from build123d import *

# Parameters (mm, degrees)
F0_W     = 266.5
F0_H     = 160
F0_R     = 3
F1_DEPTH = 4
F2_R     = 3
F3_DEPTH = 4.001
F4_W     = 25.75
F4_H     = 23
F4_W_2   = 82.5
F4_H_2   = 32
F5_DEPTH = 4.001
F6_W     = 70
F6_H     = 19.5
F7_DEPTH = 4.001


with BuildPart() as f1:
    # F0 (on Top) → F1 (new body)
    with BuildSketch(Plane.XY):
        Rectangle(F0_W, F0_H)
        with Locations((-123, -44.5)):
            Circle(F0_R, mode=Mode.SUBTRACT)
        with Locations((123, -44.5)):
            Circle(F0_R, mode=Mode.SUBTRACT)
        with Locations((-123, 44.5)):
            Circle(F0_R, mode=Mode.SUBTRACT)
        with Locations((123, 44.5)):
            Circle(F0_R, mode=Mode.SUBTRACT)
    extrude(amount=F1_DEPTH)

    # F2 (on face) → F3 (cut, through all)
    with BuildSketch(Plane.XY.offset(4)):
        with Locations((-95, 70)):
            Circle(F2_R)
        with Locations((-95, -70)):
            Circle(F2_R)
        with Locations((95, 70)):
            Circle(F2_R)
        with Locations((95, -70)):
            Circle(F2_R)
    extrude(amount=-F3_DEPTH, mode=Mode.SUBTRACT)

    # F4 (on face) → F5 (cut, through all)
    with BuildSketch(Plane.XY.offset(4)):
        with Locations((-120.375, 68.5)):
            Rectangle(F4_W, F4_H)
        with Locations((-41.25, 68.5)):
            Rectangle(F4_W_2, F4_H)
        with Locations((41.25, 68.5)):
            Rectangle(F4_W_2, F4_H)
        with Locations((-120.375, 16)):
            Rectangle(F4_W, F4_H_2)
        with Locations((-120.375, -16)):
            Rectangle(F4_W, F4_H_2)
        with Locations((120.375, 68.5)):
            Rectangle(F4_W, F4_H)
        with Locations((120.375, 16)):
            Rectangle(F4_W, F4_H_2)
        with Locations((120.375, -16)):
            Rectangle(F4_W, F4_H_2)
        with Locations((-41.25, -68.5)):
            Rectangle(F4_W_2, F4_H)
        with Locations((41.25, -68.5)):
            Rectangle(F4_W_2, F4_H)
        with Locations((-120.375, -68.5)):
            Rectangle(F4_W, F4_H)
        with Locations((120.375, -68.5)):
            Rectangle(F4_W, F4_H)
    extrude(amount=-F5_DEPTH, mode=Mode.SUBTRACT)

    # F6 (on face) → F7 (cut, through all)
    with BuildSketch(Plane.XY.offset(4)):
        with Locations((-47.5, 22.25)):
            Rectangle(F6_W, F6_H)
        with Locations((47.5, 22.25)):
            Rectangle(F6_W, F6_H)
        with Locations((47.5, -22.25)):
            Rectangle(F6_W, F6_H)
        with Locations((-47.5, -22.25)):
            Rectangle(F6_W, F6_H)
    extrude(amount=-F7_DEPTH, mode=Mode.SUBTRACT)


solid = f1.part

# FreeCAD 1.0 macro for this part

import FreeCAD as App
import Part
import Sketcher

V = App.Vector
Q = App.Units.Quantity

doc = App.newDocument("Part")
body = doc.addObject("PartDesign::Body", "Body")

# Sketch on XY plane
sketch1 = body.newObject("Sketcher::SketchObject", "Sketch")
sketch1.AttachmentSupport = (doc.getObject("XY_Plane"), [""])
sketch1.MapMode = "FlatFace"
sketch1.addGeometry([
    Part.LineSegment(V(-133.25, 80, 0), V(-133.25, -80, 0)),  # 0
    Part.LineSegment(V(-133.25, -80, 0), V(133.25, -80, 0)),  # 1
    Part.LineSegment(V(133.25, -80, 0), V(133.25, 80, 0)),  # 2
    Part.LineSegment(V(133.25, 80, 0), V(-133.25, 80, 0)),  # 3
    Part.Circle(V(-123, -44.5, 0), V(0, 0, 1), 3),  # 4
    Part.Circle(V(123, -44.5, 0), V(0, 0, 1), 3),  # 5
    Part.Circle(V(-123, 44.5, 0), V(0, 0, 1), 3),  # 6
    Part.Circle(V(123, 44.5, 0), V(0, 0, 1), 3),  # 7
], False)
sketch1.addConstraint([
    Sketcher.Constraint("Coincident", 0, 2, 1, 1),
    Sketcher.Constraint("Coincident", 1, 2, 2, 1),
    Sketcher.Constraint("Coincident", 2, 2, 3, 1),
    Sketcher.Constraint("Coincident", 3, 2, 0, 1),
    Sketcher.Constraint("Vertical", 0),
    Sketcher.Constraint("Horizontal", 1),
    Sketcher.Constraint("Vertical", 2),
    Sketcher.Constraint("Horizontal", 3),
    Sketcher.Constraint("Equal", 4, 5),
    Sketcher.Constraint("Equal", 5, 6),
    Sketcher.Constraint("Equal", 6, 7),
    Sketcher.Constraint("Symmetric", 5, 3, 6, 3, -1, 1),
    Sketcher.Constraint("Symmetric", 4, 3, 7, 3, -1, 1),
    Sketcher.Constraint("Symmetric", 0, 2, 2, 2, -1, 1),
    Sketcher.Constraint("Symmetric", 4, 3, 5, 3, -2),
    Sketcher.Constraint("Diameter", 4, Q("6 mm")),
    Sketcher.Constraint("DistanceY", 0, 2, 0, 1, Q("160 mm")),
    Sketcher.Constraint("DistanceX", 1, 1, 1, 2, Q("266.5 mm")),
    Sketcher.Constraint("DistanceX", 4, 3, -1, 1, Q("123 mm")),
    Sketcher.Constraint("DistanceY", 4, 3, 6, 3, Q("89 mm")),
])
pad1 = body.newObject("PartDesign::Pad", "Pad")
pad1.Profile = sketch1
pad1.Length = 4

# Sketch on XY plane
sketch2 = body.newObject("Sketcher::SketchObject", "Sketch001")
sketch2.AttachmentSupport = (doc.getObject("XY_Plane"), [""])
sketch2.MapMode = "FlatFace"
sketch2.AttachmentOffset = App.Placement(V(0, 0, 4), App.Rotation())
sketch2.addGeometry([
    Part.Circle(V(-95, 70, 0), V(0, 0, 1), 3),
    Part.Circle(V(-95, -70, 0), V(0, 0, 1), 3),
    Part.Circle(V(95, 70, 0), V(0, 0, 1), 3),
    Part.Circle(V(95, -70, 0), V(0, 0, 1), 3),
], False)
sketch2.addConstraint([
    Sketcher.Constraint("Equal", 0, 1),
    Sketcher.Constraint("Equal", 1, 2),
    Sketcher.Constraint("Equal", 2, 3),
    Sketcher.Constraint("Symmetric", 1, 3, 2, 3, -1, 1),
    Sketcher.Constraint("Symmetric", 0, 3, 3, 3, -1, 1),
    Sketcher.Constraint("Symmetric", 0, 3, 2, 3, -2),
    Sketcher.Constraint("Diameter", 0, Q("6 mm")),
    Sketcher.Constraint("DistanceX", 0, 3, -1, 1, Q("95 mm")),
    Sketcher.Constraint("DistanceY", -1, 1, 0, 3, Q("70 mm")),
])
pocket1 = body.newObject("PartDesign::Pocket", "Pocket")
pocket1.Profile = sketch2
pocket1.Type = "ThroughAll"

# Sketch on XY plane
sketch3 = body.newObject("Sketcher::SketchObject", "Sketch002")
sketch3.AttachmentSupport = (doc.getObject("XY_Plane"), [""])
sketch3.MapMode = "FlatFace"
sketch3.AttachmentOffset = App.Placement(V(0, 0, 4), App.Rotation())
sketch3.addGeometry([
    Part.LineSegment(V(-133.25, 80, 0), V(-133.25, 57, 0)),  # 0
    Part.LineSegment(V(-133.25, 57, 0), V(-107.5, 57, 0)),  # 1
    Part.LineSegment(V(-107.5, 57, 0), V(-107.5, 80, 0)),  # 2
    Part.LineSegment(V(-107.5, 80, 0), V(-133.25, 80, 0)),  # 3
    Part.LineSegment(V(-82.5, 80, 0), V(-82.5, 57, 0)),  # 4
    Part.LineSegment(V(-82.5, 57, 0), V(82.5, 57, 0)),  # 5
    Part.LineSegment(V(82.5, 57, 0), V(82.5, 80, 0)),  # 6
    Part.LineSegment(V(82.5, 80, 0), V(-82.5, 80, 0)),  # 7
    Part.LineSegment(V(-133.25, 32, 0), V(-133.25, -32, 0)),  # 8
    Part.LineSegment(V(-133.25, -32, 0), V(-107.5, -32, 0)),  # 9
    Part.LineSegment(V(-107.5, -32, 0), V(-107.5, 32, 0)),  # 10
    Part.LineSegment(V(-107.5, 32, 0), V(-133.25, 32, 0)),  # 11
    Part.LineSegment(V(107.5, 80, 0), V(107.5, 57, 0)),  # 12
    Part.LineSegment(V(107.5, 57, 0), V(133.25, 57, 0)),  # 13
    Part.LineSegment(V(133.25, 57, 0), V(133.25, 80, 0)),  # 14
    Part.LineSegment(V(133.25, 80, 0), V(107.5, 80, 0)),  # 15
    Part.LineSegment(V(107.5, 32, 0), V(107.5, -32, 0)),  # 16
    Part.LineSegment(V(107.5, -32, 0), V(133.25, -32, 0)),  # 17
    Part.LineSegment(V(133.25, -32, 0), V(133.25, 32, 0)),  # 18
    Part.LineSegment(V(133.25, 32, 0), V(107.5, 32, 0)),  # 19
    Part.LineSegment(V(-82.5, -57, 0), V(-82.5, -80, 0)),  # 20
    Part.LineSegment(V(-82.5, -80, 0), V(82.5, -80, 0)),  # 21
    Part.LineSegment(V(82.5, -80, 0), V(82.5, -57, 0)),  # 22
    Part.LineSegment(V(82.5, -57, 0), V(-82.5, -57, 0)),  # 23
    Part.LineSegment(V(-133.25, -57, 0), V(-133.25, -80, 0)),  # 24
    Part.LineSegment(V(-133.25, -80, 0), V(-107.5, -80, 0)),  # 25
    Part.LineSegment(V(-107.5, -80, 0), V(-107.5, -57, 0)),  # 26
    Part.LineSegment(V(-107.5, -57, 0), V(-133.25, -57, 0)),  # 27
    Part.LineSegment(V(107.5, -57, 0), V(107.5, -80, 0)),  # 28
    Part.LineSegment(V(107.5, -80, 0), V(133.25, -80, 0)),  # 29
    Part.LineSegment(V(133.25, -80, 0), V(133.25, -57, 0)),  # 30
    Part.LineSegment(V(133.25, -57, 0), V(107.5, -57, 0)),  # 31
], False)
sketch3.addConstraint([
    Sketcher.Constraint("Coincident", 0, 2, 1, 1),
    Sketcher.Constraint("Coincident", 1, 2, 2, 1),
    Sketcher.Constraint("Coincident", 2, 2, 3, 1),
    Sketcher.Constraint("Coincident", 3, 2, 0, 1),
    Sketcher.Constraint("Coincident", 4, 2, 5, 1),
    Sketcher.Constraint("Coincident", 5, 2, 6, 1),
    Sketcher.Constraint("Coincident", 6, 2, 7, 1),
    Sketcher.Constraint("Coincident", 7, 2, 4, 1),
    Sketcher.Constraint("Coincident", 8, 2, 9, 1),
    Sketcher.Constraint("Coincident", 9, 2, 10, 1),
    Sketcher.Constraint("Coincident", 10, 2, 11, 1),
    Sketcher.Constraint("Coincident", 11, 2, 8, 1),
    Sketcher.Constraint("Coincident", 12, 2, 13, 1),
    Sketcher.Constraint("Coincident", 13, 2, 14, 1),
    Sketcher.Constraint("Coincident", 14, 2, 15, 1),
    Sketcher.Constraint("Coincident", 15, 2, 12, 1),
    Sketcher.Constraint("Coincident", 16, 2, 17, 1),
    Sketcher.Constraint("Coincident", 17, 2, 18, 1),
    Sketcher.Constraint("Coincident", 18, 2, 19, 1),
    Sketcher.Constraint("Coincident", 19, 2, 16, 1),
    Sketcher.Constraint("Coincident", 20, 2, 21, 1),
    Sketcher.Constraint("Coincident", 21, 2, 22, 1),
    Sketcher.Constraint("Coincident", 22, 2, 23, 1),
    Sketcher.Constraint("Coincident", 23, 2, 20, 1),
    Sketcher.Constraint("Coincident", 24, 2, 25, 1),
    Sketcher.Constraint("Coincident", 25, 2, 26, 1),
    Sketcher.Constraint("Coincident", 26, 2, 27, 1),
    Sketcher.Constraint("Coincident", 27, 2, 24, 1),
    Sketcher.Constraint("Coincident", 28, 2, 29, 1),
    Sketcher.Constraint("Coincident", 29, 2, 30, 1),
    Sketcher.Constraint("Coincident", 30, 2, 31, 1),
    Sketcher.Constraint("Coincident", 31, 2, 28, 1),
    Sketcher.Constraint("Vertical", 0),
    Sketcher.Constraint("Horizontal", 1),
    Sketcher.Constraint("Vertical", 2),
    Sketcher.Constraint("Horizontal", 3),
    Sketcher.Constraint("Vertical", 4),
    Sketcher.Constraint("Horizontal", 5),
    Sketcher.Constraint("Vertical", 6),
    Sketcher.Constraint("Horizontal", 7),
    Sketcher.Constraint("Vertical", 8),
    Sketcher.Constraint("Horizontal", 9),
    Sketcher.Constraint("Vertical", 10),
    Sketcher.Constraint("Horizontal", 11),
    Sketcher.Constraint("Vertical", 12),
    Sketcher.Constraint("Horizontal", 13),
    Sketcher.Constraint("Vertical", 14),
    Sketcher.Constraint("Horizontal", 15),
    Sketcher.Constraint("Vertical", 16),
    Sketcher.Constraint("Horizontal", 17),
    Sketcher.Constraint("Vertical", 18),
    Sketcher.Constraint("Horizontal", 19),
    Sketcher.Constraint("Vertical", 20),
    Sketcher.Constraint("Horizontal", 21),
    Sketcher.Constraint("Vertical", 22),
    Sketcher.Constraint("Horizontal", 23),
    Sketcher.Constraint("Vertical", 24),
    Sketcher.Constraint("Horizontal", 25),
    Sketcher.Constraint("Vertical", 26),
    Sketcher.Constraint("Horizontal", 27),
    Sketcher.Constraint("Vertical", 28),
    Sketcher.Constraint("Horizontal", 29),
    Sketcher.Constraint("Vertical", 30),
    Sketcher.Constraint("Horizontal", 31),
    Sketcher.Constraint("Symmetric", 10, 2, 16, 2, -1, 1),
    Sketcher.Constraint("Symmetric", 8, 2, 18, 2, -1, 1),
    Sketcher.Constraint("Symmetric", 6, 2, 20, 2, -1, 1),
    Sketcher.Constraint("Symmetric", 4, 2, 22, 2, -1, 1),
    Sketcher.Constraint("Symmetric", 14, 2, 24, 2, -1, 1),
    Sketcher.Constraint("Symmetric", 12, 2, 26, 2, -1, 1),
    Sketcher.Constraint("Symmetric", 2, 2, 28, 2, -1, 1),
    Sketcher.Constraint("Symmetric", 0, 2, 30, 2, -1, 1),
    Sketcher.Constraint("Symmetric", 1, 2, 12, 2, -2),
    Sketcher.Constraint("Symmetric", 3, 2, 14, 2, -2),
    Sketcher.Constraint("Horizontal", 1, 2, 4, 2),
    Sketcher.Constraint("Horizontal", 3, 2, 6, 2),
    Sketcher.Constraint("Horizontal", 9, 2, 16, 2),
    Sketcher.Constraint("Vertical", 3, 2, 8, 2),
    Sketcher.Constraint("Vertical", 2, 2, 9, 2),
    Sketcher.Constraint("Vertical", 7, 2, 20, 2),
    Sketcher.Constraint("DistanceX", 5, 1, 5, 2, Q("165 mm")),
    Sketcher.Constraint("DistanceY", 0, 2, 0, 1, Q("23 mm")),
    Sketcher.Constraint("DistanceY", 8, 2, 8, 1, Q("64 mm")),
    Sketcher.Constraint("DistanceY", -1, 1, 0, 2, Q("57 mm")),
    Sketcher.Constraint("DistanceX", 1, 2, 4, 2, Q("25 mm")),
    Sketcher.Constraint("DistanceX", 1, 1, 1, 2, Q("25.75 mm")),
])
pocket2 = body.newObject("PartDesign::Pocket", "Pocket001")
pocket2.Profile = sketch3
pocket2.Type = "ThroughAll"

# Sketch on XY plane
sketch4 = body.newObject("Sketcher::SketchObject", "Sketch003")
sketch4.AttachmentSupport = (doc.getObject("XY_Plane"), [""])
sketch4.MapMode = "FlatFace"
sketch4.AttachmentOffset = App.Placement(V(0, 0, 4), App.Rotation())
sketch4.addGeometry([
    Part.LineSegment(V(-82.5, 32, 0), V(-82.5, 12.5, 0)),  # 0
    Part.LineSegment(V(-82.5, 12.5, 0), V(-12.5, 12.5, 0)),  # 1
    Part.LineSegment(V(-12.5, 12.5, 0), V(-12.5, 32, 0)),  # 2
    Part.LineSegment(V(-12.5, 32, 0), V(-82.5, 32, 0)),  # 3
    Part.LineSegment(V(12.5, 32, 0), V(12.5, 12.5, 0)),  # 4
    Part.LineSegment(V(12.5, 12.5, 0), V(82.5, 12.5, 0)),  # 5
    Part.LineSegment(V(82.5, 12.5, 0), V(82.5, 32, 0)),  # 6
    Part.LineSegment(V(82.5, 32, 0), V(12.5, 32, 0)),  # 7
    Part.LineSegment(V(12.5, -12.5, 0), V(12.5, -32, 0)),  # 8
    Part.LineSegment(V(12.5, -32, 0), V(82.5, -32, 0)),  # 9
    Part.LineSegment(V(82.5, -32, 0), V(82.5, -12.5, 0)),  # 10
    Part.LineSegment(V(82.5, -12.5, 0), V(12.5, -12.5, 0)),  # 11
    Part.LineSegment(V(-82.5, -12.5, 0), V(-82.5, -32, 0)),  # 12
    Part.LineSegment(V(-82.5, -32, 0), V(-12.5, -32, 0)),  # 13
    Part.LineSegment(V(-12.5, -32, 0), V(-12.5, -12.5, 0)),  # 14
    Part.LineSegment(V(-12.5, -12.5, 0), V(-82.5, -12.5, 0)),  # 15
], False)
sketch4.addConstraint([
    Sketcher.Constraint("Coincident", 0, 2, 1, 1),
    Sketcher.Constraint("Coincident", 1, 2, 2, 1),
    Sketcher.Constraint("Coincident", 2, 2, 3, 1),
    Sketcher.Constraint("Coincident", 3, 2, 0, 1),
    Sketcher.Constraint("Coincident", 4, 2, 5, 1),
    Sketcher.Constraint("Coincident", 5, 2, 6, 1),
    Sketcher.Constraint("Coincident", 6, 2, 7, 1),
    Sketcher.Constraint("Coincident", 7, 2, 4, 1),
    Sketcher.Constraint("Coincident", 8, 2, 9, 1),
    Sketcher.Constraint("Coincident", 9, 2, 10, 1),
    Sketcher.Constraint("Coincident", 10, 2, 11, 1),
    Sketcher.Constraint("Coincident", 11, 2, 8, 1),
    Sketcher.Constraint("Coincident", 12, 2, 13, 1),
    Sketcher.Constraint("Coincident", 13, 2, 14, 1),
    Sketcher.Constraint("Coincident", 14, 2, 15, 1),
    Sketcher.Constraint("Coincident", 15, 2, 12, 1),
    Sketcher.Constraint("Vertical", 0),
    Sketcher.Constraint("Horizontal", 1),
    Sketcher.Constraint("Vertical", 2),
    Sketcher.Constraint("Horizontal", 3),
    Sketcher.Constraint("Vertical", 4),
    Sketcher.Constraint("Horizontal", 5),
    Sketcher.Constraint("Vertical", 6),
    Sketcher.Constraint("Horizontal", 7),
    Sketcher.Constraint("Vertical", 8),
    Sketcher.Constraint("Horizontal", 9),
    Sketcher.Constraint("Vertical", 10),
    Sketcher.Constraint("Horizontal", 11),
    Sketcher.Constraint("Vertical", 12),
    Sketcher.Constraint("Horizontal", 13),
    Sketcher.Constraint("Vertical", 14),
    Sketcher.Constraint("Horizontal", 15),
    Sketcher.Constraint("Symmetric", 2, 2, 8, 2, -1, 1),
    Sketcher.Constraint("Symmetric", 0, 2, 10, 2, -1, 1),
    Sketcher.Constraint("Symmetric", 6, 2, 12, 2, -1, 1),
    Sketcher.Constraint("Symmetric", 4, 2, 14, 2, -1, 1),
    Sketcher.Constraint("Symmetric", 1, 2, 4, 2, -2),
    Sketcher.Constraint("Symmetric", 3, 2, 6, 2, -2),
    Sketcher.Constraint("DistanceX", 1, 1, 1, 2, Q("70 mm")),
    Sketcher.Constraint("DistanceY", 0, 2, 0, 1, Q("19.5 mm")),
    Sketcher.Constraint("DistanceY", -1, 1, 2, 2, Q("32 mm")),
    Sketcher.Constraint("DistanceX", 1, 2, 4, 2, Q("25 mm")),
])
pocket3 = body.newObject("PartDesign::Pocket", "Pocket002")
pocket3.Profile = sketch4
pocket3.Type = "ThroughAll"

doc.recompute()
